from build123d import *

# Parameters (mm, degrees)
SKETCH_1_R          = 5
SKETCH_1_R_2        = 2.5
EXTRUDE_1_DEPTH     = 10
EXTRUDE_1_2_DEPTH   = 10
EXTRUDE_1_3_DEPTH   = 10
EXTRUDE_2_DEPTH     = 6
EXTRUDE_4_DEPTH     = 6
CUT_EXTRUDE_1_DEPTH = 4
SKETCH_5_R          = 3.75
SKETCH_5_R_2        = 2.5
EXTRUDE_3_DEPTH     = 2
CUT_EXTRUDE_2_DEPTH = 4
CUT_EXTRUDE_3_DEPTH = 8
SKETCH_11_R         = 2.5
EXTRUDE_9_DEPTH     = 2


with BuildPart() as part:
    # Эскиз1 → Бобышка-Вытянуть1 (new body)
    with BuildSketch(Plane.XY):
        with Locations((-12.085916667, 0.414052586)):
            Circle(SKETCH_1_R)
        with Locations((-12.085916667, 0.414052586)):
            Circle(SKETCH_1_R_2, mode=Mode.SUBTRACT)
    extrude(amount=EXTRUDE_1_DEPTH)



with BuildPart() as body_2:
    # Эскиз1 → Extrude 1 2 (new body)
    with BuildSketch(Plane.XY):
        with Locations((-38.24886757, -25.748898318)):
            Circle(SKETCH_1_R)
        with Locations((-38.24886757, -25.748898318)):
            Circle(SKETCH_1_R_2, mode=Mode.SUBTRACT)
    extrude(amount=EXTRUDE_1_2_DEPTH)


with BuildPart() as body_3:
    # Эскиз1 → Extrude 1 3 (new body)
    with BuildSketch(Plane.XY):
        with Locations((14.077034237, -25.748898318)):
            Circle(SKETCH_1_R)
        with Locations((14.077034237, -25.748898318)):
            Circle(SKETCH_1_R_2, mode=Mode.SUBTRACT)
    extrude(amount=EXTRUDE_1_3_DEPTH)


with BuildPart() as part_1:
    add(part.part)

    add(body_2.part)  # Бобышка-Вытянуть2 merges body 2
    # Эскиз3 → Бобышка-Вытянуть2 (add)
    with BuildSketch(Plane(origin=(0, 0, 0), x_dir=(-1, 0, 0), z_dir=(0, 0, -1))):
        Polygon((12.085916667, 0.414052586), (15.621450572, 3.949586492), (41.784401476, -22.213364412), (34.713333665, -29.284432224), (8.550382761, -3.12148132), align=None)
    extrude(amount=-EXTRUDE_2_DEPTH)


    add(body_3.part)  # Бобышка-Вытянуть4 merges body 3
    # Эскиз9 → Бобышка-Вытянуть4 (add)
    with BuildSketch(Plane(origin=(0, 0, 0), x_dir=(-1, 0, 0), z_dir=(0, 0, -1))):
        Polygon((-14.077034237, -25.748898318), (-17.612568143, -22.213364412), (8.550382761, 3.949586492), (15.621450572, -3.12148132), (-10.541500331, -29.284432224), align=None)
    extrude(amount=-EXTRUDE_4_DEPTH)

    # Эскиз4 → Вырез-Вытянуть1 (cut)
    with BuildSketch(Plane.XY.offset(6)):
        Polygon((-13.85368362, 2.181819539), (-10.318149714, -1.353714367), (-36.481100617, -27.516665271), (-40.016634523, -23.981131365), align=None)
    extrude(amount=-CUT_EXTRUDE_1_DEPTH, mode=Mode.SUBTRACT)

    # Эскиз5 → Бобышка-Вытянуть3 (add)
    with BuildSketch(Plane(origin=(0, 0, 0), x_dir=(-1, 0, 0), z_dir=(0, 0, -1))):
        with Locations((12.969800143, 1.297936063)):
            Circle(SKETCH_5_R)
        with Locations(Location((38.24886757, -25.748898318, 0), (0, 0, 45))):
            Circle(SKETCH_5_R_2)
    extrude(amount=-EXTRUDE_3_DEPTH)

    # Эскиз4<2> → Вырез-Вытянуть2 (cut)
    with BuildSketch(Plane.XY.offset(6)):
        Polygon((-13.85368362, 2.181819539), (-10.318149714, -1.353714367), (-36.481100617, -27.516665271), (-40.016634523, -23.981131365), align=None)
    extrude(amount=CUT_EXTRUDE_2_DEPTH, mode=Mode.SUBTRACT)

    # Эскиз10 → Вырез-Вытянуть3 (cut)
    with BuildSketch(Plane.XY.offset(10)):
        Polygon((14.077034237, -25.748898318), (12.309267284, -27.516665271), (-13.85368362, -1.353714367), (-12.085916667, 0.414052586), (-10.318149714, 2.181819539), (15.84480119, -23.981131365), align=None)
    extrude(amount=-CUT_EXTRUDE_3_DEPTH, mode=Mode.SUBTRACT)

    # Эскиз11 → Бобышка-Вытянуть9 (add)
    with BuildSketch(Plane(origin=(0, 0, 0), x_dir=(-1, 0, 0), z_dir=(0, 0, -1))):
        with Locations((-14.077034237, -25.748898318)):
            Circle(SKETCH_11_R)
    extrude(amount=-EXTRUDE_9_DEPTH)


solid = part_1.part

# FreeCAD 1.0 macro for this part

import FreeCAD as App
import Part
import Sketcher
from FreeCAD import Vector
Q = App.Units.Quantity

doc = App.newDocument("Part")
body = doc.addObject("PartDesign::Body", "Body")

sketch1 = doc.addObject("Sketcher::SketchObject", "Sketch")
body.addObject(sketch1)
sketch1.AttachmentSupport = (doc.XY_Plane, [""])
sketch1.MapMode = "FlatFace"
sketch1.addGeometry([
    Part.Circle(Vector(-12.085917, 0.414053, 0), Vector(0, 0, 1), 5),
    Part.Circle(Vector(-12.085917, 0.414053, 0), Vector(0, 0, 1), 2.5),
], False)
sketch1.addConstraint([
    Sketcher.Constraint("Coincident", 1, 3, 0, 3),
    Sketcher.Constraint("Diameter", 0, Q("10 mm")),
    Sketcher.Constraint("Diameter", 1, Q("5 mm")),
    Sketcher.Constraint("DistanceX", 0, 3, -1, 1, Q("12.085917 mm")),
    Sketcher.Constraint("DistanceY", -1, 1, 0, 3, Q("0.414053 mm")),
])
pad1 = doc.addObject("PartDesign::Pad", "Pad")
body.addObject(pad1)
pad1.Profile = sketch1
pad1.Length = 10
body2 = doc.addObject("PartDesign::Body", "Body001")

sketch2 = doc.addObject("Sketcher::SketchObject", "Sketch001")
body2.addObject(sketch2)
sketch2.AttachmentSupport = (doc.getObject("XY_Plane001"), [""])
sketch2.MapMode = "FlatFace"
sketch2.addGeometry([
    Part.Circle(Vector(-38.248868, -25.748898, 0), Vector(0, 0, 1), 5),
    Part.Circle(Vector(-38.248868, -25.748898, 0), Vector(0, 0, 1), 2.5),
], False)
sketch2.addConstraint([
    Sketcher.Constraint("Coincident", 1, 3, 0, 3),
    Sketcher.Constraint("Diameter", 0, Q("10 mm")),
    Sketcher.Constraint("Diameter", 1, Q("5 mm")),
    Sketcher.Constraint("DistanceY", 0, 3, -1, 1, Q("25.748898 mm")),
    Sketcher.Constraint("DistanceX", 0, 3, -1, 1, Q("38.248868 mm")),
])
pad2 = doc.addObject("PartDesign::Pad", "Pad001")
body2.addObject(pad2)
pad2.Profile = sketch2
pad2.Length = 10
body3 = doc.addObject("PartDesign::Body", "Body002")

sketch3 = doc.addObject("Sketcher::SketchObject", "Sketch002")
body3.addObject(sketch3)
sketch3.AttachmentSupport = (doc.getObject("XY_Plane002"), [""])
sketch3.MapMode = "FlatFace"
sketch3.addGeometry([
    Part.Circle(Vector(14.077034, -25.748898, 0), Vector(0, 0, 1), 5),
    Part.Circle(Vector(14.077034, -25.748898, 0), Vector(0, 0, 1), 2.5),
], False)
sketch3.addConstraint([
    Sketcher.Constraint("Coincident", 1, 3, 0, 3),
    Sketcher.Constraint("Diameter", 0, Q("10 mm")),
    Sketcher.Constraint("Diameter", 1, Q("5 mm")),
    Sketcher.Constraint("DistanceY", 0, 3, -1, 1, Q("25.748898 mm")),
    Sketcher.Constraint("DistanceX", -1, 1, 0, 3, Q("14.077034 mm")),
])
pad3 = doc.addObject("PartDesign::Pad", "Pad002")
body3.addObject(pad3)
pad3.Profile = sketch3
pad3.Length = 10
body.AllowCompound = True
doc.recompute()

boolean = doc.addObject("PartDesign::Boolean", "Boolean")
body.addObject(boolean)
boolean.Type = "Fuse"
boolean.addObjects([body2])

sketch4 = doc.addObject("Sketcher::SketchObject", "Sketch003")
body.addObject(sketch4)
sketch4.AttachmentSupport = (doc.XY_Plane, [""])
sketch4.MapMode = "FlatFace"
sketch4.addGeometry([
    Part.LineSegment(Vector(-15.621451, 3.949586, 0), Vector(-12.085917, 0.414053, 0)),
    Part.LineSegment(Vector(-12.085917, 0.414053, 0), Vector(-8.550383, -3.121481, 0)),
    Part.LineSegment(Vector(-8.550383, -3.121481, 0), Vector(-34.713334, -29.284432, 0)),
    Part.LineSegment(Vector(-34.713334, -29.284432, 0), Vector(-41.784401, -22.213364, 0)),
    Part.LineSegment(Vector(-41.784401, -22.213364, 0), Vector(-15.621451, 3.949586, 0)),
], False)
sketch4.addConstraint([
    Sketcher.Constraint("Coincident", 0, 2, 1, 1),
    Sketcher.Constraint("Coincident", 1, 2, 2, 1),
    Sketcher.Constraint("Coincident", 2, 2, 3, 1),
    Sketcher.Constraint("Coincident", 3, 2, 4, 1),
    Sketcher.Constraint("Coincident", 4, 2, 0, 1),
    Sketcher.Constraint("Parallel", 0, 1),
    Sketcher.Constraint("Perpendicular", 1, 2),
    Sketcher.Constraint("Perpendicular", 2, 3),
    Sketcher.Constraint("Perpendicular", 3, 4),
    Sketcher.Constraint("Equal", 0, 1),
    Sketcher.Constraint("Angle", 0, Q("-45 deg")),
    Sketcher.Constraint("Distance", 0, Q("5 mm")),
    Sketcher.Constraint("Distance", 2, Q("37 mm")),
    Sketcher.Constraint("DistanceX", 3, 2, -1, 1, Q("41.784401 mm")),
    Sketcher.Constraint("DistanceY", 1, 2, -1, 1, Q("3.121481 mm")),
])
pad4 = doc.addObject("PartDesign::Pad", "Pad003")
body.addObject(pad4)
pad4.Profile = sketch4
pad4.Length = 6
doc.recompute()

boolean2 = doc.addObject("PartDesign::Boolean", "Boolean001")
body.addObject(boolean2)
boolean2.Type = "Fuse"
boolean2.addObjects([body3])

sketch5 = doc.addObject("Sketcher::SketchObject", "Sketch004")
body.addObject(sketch5)
sketch5.AttachmentSupport = (doc.XY_Plane, [""])
sketch5.MapMode = "FlatFace"
sketch5.addGeometry([
    Part.LineSegment(Vector(17.612568, -22.213364, 0), Vector(10.5415, -29.284432, 0)),
    Part.LineSegment(Vector(10.5415, -29.284432, 0), Vector(-15.621451, -3.121481, 0)),
    Part.LineSegment(Vector(-15.621451, -3.121481, 0), Vector(-8.550383, 3.949586, 0)),
    Part.LineSegment(Vector(-8.550383, 3.949586, 0), Vector(17.612568, -22.213364, 0)),
], False)
sketch5.addConstraint([
    Sketcher.Constraint("Coincident", 0, 2, 1, 1),
    Sketcher.Constraint("Coincident", 1, 2, 2, 1),
    Sketcher.Constraint("Coincident", 2, 2, 3, 1),
    Sketcher.Constraint("Coincident", 3, 2, 0, 1),
    Sketcher.Constraint("Perpendicular", 0, 1),
    Sketcher.Constraint("Perpendicular", 1, 2),
    Sketcher.Constraint("Perpendicular", 2, 3),
    Sketcher.Constraint("Angle", 0, Q("-135 deg")),
    Sketcher.Constraint("Distance", 0, Q("10 mm")),
    Sketcher.Constraint("Distance", 1, Q("37 mm")),
    Sketcher.Constraint("DistanceX", -1, 1, 0, 2, Q("10.5415 mm")),
    Sketcher.Constraint("DistanceY", 1, 2, -1, 1, Q("3.121481 mm")),
])
pad5 = doc.addObject("PartDesign::Pad", "Pad004")
body.addObject(pad5)
pad5.Profile = sketch5
pad5.Length = 6

sketch6 = doc.addObject("Sketcher::SketchObject", "Sketch005")
body.addObject(sketch6)
sketch6.AttachmentSupport = (doc.XY_Plane, [""])
sketch6.MapMode = "FlatFace"
sketch6.AttachmentOffset = App.Placement(Vector(0, 0, 6), App.Rotation())
sketch6.addGeometry([
    Part.LineSegment(Vector(-10.31815, -1.353714, 0), Vector(-13.853684, 2.18182, 0)),
    Part.LineSegment(Vector(-13.853684, 2.18182, 0), Vector(-40.016635, -23.981131, 0)),
    Part.LineSegment(Vector(-40.016635, -23.981131, 0), Vector(-36.481101, -27.516665, 0)),
    Part.LineSegment(Vector(-36.481101, -27.516665, 0), Vector(-10.31815, -1.353714, 0)),
], False)
sketch6.addConstraint([
    Sketcher.Constraint("Coincident", 0, 2, 1, 1),
    Sketcher.Constraint("Coincident", 1, 2, 2, 1),
    Sketcher.Constraint("Coincident", 2, 2, 3, 1),
    Sketcher.Constraint("Coincident", 3, 2, 0, 1),
    Sketcher.Constraint("Perpendicular", 0, 1),
    Sketcher.Constraint("Perpendicular", 1, 2),
    Sketcher.Constraint("Perpendicular", 2, 3),
    Sketcher.Constraint("Angle", 0, Q("135 deg")),
    Sketcher.Constraint("Distance", 0, Q("5 mm")),
    Sketcher.Constraint("Distance", 1, Q("37 mm")),
    Sketcher.Constraint("DistanceX", 2, 2, -1, 1, Q("36.481101 mm")),
    Sketcher.Constraint("DistanceY", -1, 1, 0, 2, Q("2.18182 mm")),
])
pocket1 = doc.addObject("PartDesign::Pocket", "Pocket")
body.addObject(pocket1)
pocket1.Profile = sketch6
pocket1.Length = 4

sketch7 = doc.addObject("Sketcher::SketchObject", "Sketch006")
body.addObject(sketch7)
sketch7.AttachmentSupport = (doc.XY_Plane, [""])
sketch7.MapMode = "FlatFace"
sketch7.addGeometry([
    Part.Circle(Vector(-12.9698, 1.297936, 0), Vector(0, 0, 1), 3.75),
    Part.Circle(Vector(-38.248868, -25.748898, 0), Vector(0, 0, 1), 2.5),
], False)
sketch7.addConstraint([
    Sketcher.Constraint("Diameter", 1, Q("5 mm")),
    Sketcher.Constraint("Diameter", 0, Q("7.5 mm")),
    Sketcher.Constraint("DistanceX", 0, 3, -1, 1, Q("12.9698 mm")),
    Sketcher.Constraint("DistanceY", 1, 3, -1, 1, Q("25.748898 mm")),
    Sketcher.Constraint("DistanceY", -1, 1, 0, 3, Q("1.297936 mm")),
    Sketcher.Constraint("DistanceX", 1, 3, -1, 1, Q("38.248868 mm")),
])
pad6 = doc.addObject("PartDesign::Pad", "Pad005")
body.addObject(pad6)
pad6.Profile = sketch7
pad6.Length = 2

sketch8 = doc.addObject("Sketcher::SketchObject", "Sketch007")
body.addObject(sketch8)
sketch8.AttachmentSupport = (doc.XY_Plane, [""])
sketch8.MapMode = "FlatFace"
sketch8.AttachmentOffset = App.Placement(Vector(0, 0, 6), App.Rotation())
sketch8.addGeometry([
    Part.LineSegment(Vector(-10.31815, -1.353714, 0), Vector(-13.853684, 2.18182, 0)),
    Part.LineSegment(Vector(-13.853684, 2.18182, 0), Vector(-40.016635, -23.981131, 0)),
    Part.LineSegment(Vector(-40.016635, -23.981131, 0), Vector(-36.481101, -27.516665, 0)),
    Part.LineSegment(Vector(-36.481101, -27.516665, 0), Vector(-10.31815, -1.353714, 0)),
], False)
sketch8.addConstraint([
    Sketcher.Constraint("Coincident", 0, 2, 1, 1),
    Sketcher.Constraint("Coincident", 1, 2, 2, 1),
    Sketcher.Constraint("Coincident", 2, 2, 3, 1),
    Sketcher.Constraint("Coincident", 3, 2, 0, 1),
    Sketcher.Constraint("Perpendicular", 0, 1),
    Sketcher.Constraint("Perpendicular", 1, 2),
    Sketcher.Constraint("Perpendicular", 2, 3),
    Sketcher.Constraint("Angle", 0, Q("135 deg")),
    Sketcher.Constraint("Distance", 0, Q("5 mm")),
    Sketcher.Constraint("Distance", 1, Q("37 mm")),
    Sketcher.Constraint("DistanceX", 2, 2, -1, 1, Q("36.481101 mm")),
    Sketcher.Constraint("DistanceY", -1, 1, 0, 2, Q("2.18182 mm")),
])
pocket2 = doc.addObject("PartDesign::Pocket", "Pocket001")
body.addObject(pocket2)
pocket2.Profile = sketch8
pocket2.Length = 4
pocket2.Reversed = True

sketch9 = doc.addObject("Sketcher::SketchObject", "Sketch008")
body.addObject(sketch9)
sketch9.AttachmentSupport = (doc.XY_Plane, [""])
sketch9.MapMode = "FlatFace"
sketch9.AttachmentOffset = App.Placement(Vector(0, 0, 10), App.Rotation())
sketch9.addGeometry([
    Part.LineSegment(Vector(12.309267, -27.516665, 0), Vector(15.844801, -23.981131, 0)),
    Part.LineSegment(Vector(15.844801, -23.981131, 0), Vector(-10.31815, 2.18182, 0)),
    Part.LineSegment(Vector(-10.31815, 2.18182, 0), Vector(-13.853684, -1.353714, 0)),
    Part.LineSegment(Vector(-13.853684, -1.353714, 0), Vector(12.309267, -27.516665, 0)),
], False)
sketch9.addConstraint([
    Sketcher.Constraint("Coincident", 0, 2, 1, 1),
    Sketcher.Constraint("Coincident", 1, 2, 2, 1),
    Sketcher.Constraint("Coincident", 2, 2, 3, 1),
    Sketcher.Constraint("Coincident", 3, 2, 0, 1),
    Sketcher.Constraint("Perpendicular", 0, 1),
    Sketcher.Constraint("Perpendicular", 1, 2),
    Sketcher.Constraint("Perpendicular", 2, 3),
    Sketcher.Constraint("Angle", 0, Q("45 deg")),
    Sketcher.Constraint("Distance", 0, Q("5 mm")),
    Sketcher.Constraint("Distance", 1, Q("37 mm")),
    Sketcher.Constraint("DistanceX", -1, 1, 0, 2, Q("15.844801 mm")),
    Sketcher.Constraint("DistanceY", 0, 2, -1, 1, Q("23.981131 mm")),
])
pocket3 = doc.addObject("PartDesign::Pocket", "Pocket002")
body.addObject(pocket3)
pocket3.Profile = sketch9
pocket3.Length = 8

sketch10 = doc.addObject("Sketcher::SketchObject", "Sketch009")
body.addObject(sketch10)
sketch10.AttachmentSupport = (doc.XY_Plane, [""])
sketch10.MapMode = "FlatFace"
sketch10.addGeometry(Part.Circle(Vector(14.077034, -25.748898, 0), Vector(0, 0, 1), 2.5), False)
sketch10.addConstraint([
    Sketcher.Constraint("Diameter", 0, Q("5 mm")),
    Sketcher.Constraint("DistanceY", 0, 3, -1, 1, Q("25.748898 mm")),
    Sketcher.Constraint("DistanceX", -1, 1, 0, 3, Q("14.077034 mm")),
])
pad7 = doc.addObject("PartDesign::Pad", "Pad006")
body.addObject(pad7)
pad7.Profile = sketch10
pad7.Length = 2

doc.recompute()
